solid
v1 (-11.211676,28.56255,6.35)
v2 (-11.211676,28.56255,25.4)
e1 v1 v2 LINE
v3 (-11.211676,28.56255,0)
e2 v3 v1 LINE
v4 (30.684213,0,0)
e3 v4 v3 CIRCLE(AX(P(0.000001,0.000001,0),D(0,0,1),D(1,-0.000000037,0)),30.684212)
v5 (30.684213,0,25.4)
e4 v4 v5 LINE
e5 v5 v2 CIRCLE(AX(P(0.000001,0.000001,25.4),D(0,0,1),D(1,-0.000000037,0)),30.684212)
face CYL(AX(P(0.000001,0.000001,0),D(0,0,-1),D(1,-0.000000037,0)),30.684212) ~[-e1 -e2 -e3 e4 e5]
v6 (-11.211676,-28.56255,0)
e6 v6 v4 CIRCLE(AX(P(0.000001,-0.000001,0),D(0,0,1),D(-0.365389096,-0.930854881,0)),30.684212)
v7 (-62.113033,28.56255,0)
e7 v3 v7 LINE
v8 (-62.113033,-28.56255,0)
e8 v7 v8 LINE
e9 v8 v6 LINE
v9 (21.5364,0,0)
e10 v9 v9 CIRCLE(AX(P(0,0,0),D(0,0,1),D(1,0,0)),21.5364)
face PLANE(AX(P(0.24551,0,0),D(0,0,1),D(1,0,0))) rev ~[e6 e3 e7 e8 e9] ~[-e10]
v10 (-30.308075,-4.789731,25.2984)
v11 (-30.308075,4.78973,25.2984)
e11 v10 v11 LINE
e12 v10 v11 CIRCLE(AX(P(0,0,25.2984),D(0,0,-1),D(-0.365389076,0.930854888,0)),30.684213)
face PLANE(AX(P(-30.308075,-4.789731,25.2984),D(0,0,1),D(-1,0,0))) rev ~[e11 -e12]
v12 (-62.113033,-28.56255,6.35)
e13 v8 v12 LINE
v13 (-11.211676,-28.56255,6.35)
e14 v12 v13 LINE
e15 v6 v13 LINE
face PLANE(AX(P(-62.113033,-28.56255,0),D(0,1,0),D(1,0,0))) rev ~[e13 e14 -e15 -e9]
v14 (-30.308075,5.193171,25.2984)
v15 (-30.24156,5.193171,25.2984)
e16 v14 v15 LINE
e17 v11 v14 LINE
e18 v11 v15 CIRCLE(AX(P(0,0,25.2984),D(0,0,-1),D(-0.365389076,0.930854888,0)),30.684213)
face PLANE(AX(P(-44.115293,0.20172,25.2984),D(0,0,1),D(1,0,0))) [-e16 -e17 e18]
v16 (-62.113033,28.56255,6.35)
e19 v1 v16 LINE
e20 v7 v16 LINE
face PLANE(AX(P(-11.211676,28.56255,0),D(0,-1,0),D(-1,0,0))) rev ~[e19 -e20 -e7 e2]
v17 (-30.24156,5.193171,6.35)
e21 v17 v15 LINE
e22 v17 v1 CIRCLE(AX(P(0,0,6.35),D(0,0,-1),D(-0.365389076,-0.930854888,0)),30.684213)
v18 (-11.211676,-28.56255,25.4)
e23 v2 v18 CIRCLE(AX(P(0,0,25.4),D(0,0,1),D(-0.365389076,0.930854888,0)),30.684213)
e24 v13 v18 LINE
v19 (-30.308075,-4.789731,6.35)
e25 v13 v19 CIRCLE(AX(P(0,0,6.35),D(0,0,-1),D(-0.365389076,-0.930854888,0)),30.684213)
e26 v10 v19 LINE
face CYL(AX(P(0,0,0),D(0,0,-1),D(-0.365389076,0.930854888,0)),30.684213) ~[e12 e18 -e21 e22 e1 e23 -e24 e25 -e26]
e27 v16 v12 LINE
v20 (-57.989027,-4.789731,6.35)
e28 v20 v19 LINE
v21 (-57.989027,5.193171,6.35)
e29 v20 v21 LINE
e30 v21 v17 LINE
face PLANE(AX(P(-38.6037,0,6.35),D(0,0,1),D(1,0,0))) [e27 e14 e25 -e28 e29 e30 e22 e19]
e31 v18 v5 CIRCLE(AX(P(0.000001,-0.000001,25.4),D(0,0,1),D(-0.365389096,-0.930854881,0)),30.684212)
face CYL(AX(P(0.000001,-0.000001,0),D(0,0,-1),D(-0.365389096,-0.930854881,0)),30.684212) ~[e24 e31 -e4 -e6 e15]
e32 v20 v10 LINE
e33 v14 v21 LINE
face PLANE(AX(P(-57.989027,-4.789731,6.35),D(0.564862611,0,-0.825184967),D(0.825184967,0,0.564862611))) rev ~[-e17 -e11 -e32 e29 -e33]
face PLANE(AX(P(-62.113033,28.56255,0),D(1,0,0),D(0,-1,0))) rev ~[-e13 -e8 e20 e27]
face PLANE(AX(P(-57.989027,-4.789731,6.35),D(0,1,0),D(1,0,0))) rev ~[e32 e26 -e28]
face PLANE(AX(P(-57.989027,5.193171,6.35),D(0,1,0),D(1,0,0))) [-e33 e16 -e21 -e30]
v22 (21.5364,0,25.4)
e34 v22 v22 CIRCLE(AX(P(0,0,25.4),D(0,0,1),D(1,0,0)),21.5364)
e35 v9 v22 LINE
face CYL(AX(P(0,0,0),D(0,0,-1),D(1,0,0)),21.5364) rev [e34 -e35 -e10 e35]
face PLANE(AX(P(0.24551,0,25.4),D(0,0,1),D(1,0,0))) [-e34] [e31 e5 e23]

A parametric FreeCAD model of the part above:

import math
import FreeCAD as App
import Part
import Sketcher
Q = App.Units.Quantity

doc = App.newDocument("Part")
params = doc.addObject("Spreadsheet::Sheet", "Params")
for row, (alias, value) in enumerate([
    ("pad1_length", "0.25 in"),
    ("pad2_length", "1 in"),
    ("pad3_length", "0.746 in"),
    ("sketch4_height", "0.746 in"),
    ("pocket1_length", "1 in"),
], start=1):
    params.set(f"A{row}", alias)
    params.set(f"B{row}", "=" + value)
    params.setAlias(f"B{row}", alias)

body = doc.addObject("PartDesign::Body", "Body")

# Sketch on XY plane
sketch1 = doc.addObject("Sketcher::SketchObject", "Sketch")
body.addObject(sketch1)
sketch1.AttachmentSupport = (doc.XY_Plane, [""])
sketch1.MapMode = "FlatFace"
sketch1.addGeometry([
    Part.ArcOfCircle(Part.Circle(App.Vector(0, 0, 0), App.Vector(0, 0, 1), 31), math.radians(111), math.radians(249)),
    Part.LineSegment(App.Vector(-11, 29, 0), App.Vector(-62, 29, 0)),
    Part.LineSegment(App.Vector(-62, 29, 0), App.Vector(-62, -29, 0)),
    Part.LineSegment(App.Vector(-62, -29, 0), App.Vector(-11, -29, 0)),
], False)
sketch1.addConstraint([
    Sketcher.Constraint("Coincident", 0, 1, 1, 1),
    Sketcher.Constraint("Coincident", 1, 2, 2, 1),
    Sketcher.Constraint("Coincident", 2, 2, 3, 1),
    Sketcher.Constraint("Coincident", 3, 2, 0, 2),
    Sketcher.Constraint("Horizontal", 1),
    Sketcher.Constraint("Vertical", 2),
    Sketcher.Constraint("Horizontal", 3),
    Sketcher.Constraint("Coincident", 0, 3, -1, 1),
    Sketcher.Constraint("Vertical", 0, 1, 3, 2),
    Sketcher.Constraint("DistanceY", 2, 2, 2, 1, Q("57.1251 mm")),
    Sketcher.Constraint("Radius", 0, Q("30.684213 mm")),
    Sketcher.Constraint("DistanceX", 1, 2, 1, 1, Q("50.901357 mm")),
])
pad1 = doc.addObject("PartDesign::Pad", "Pad")
body.addObject(pad1)
pad1.Profile = sketch1
pad1.setExpression("Length", "Params.pad1_length")

# Sketch on XY plane
sketch2 = doc.addObject("Sketcher::SketchObject", "Sketch001")
body.addObject(sketch2)
sketch2.AttachmentSupport = (doc.XY_Plane, [""])
sketch2.MapMode = "FlatFace"
sketch2.addGeometry([
    Part.ArcOfCircle(Part.Circle(App.Vector(0, 0, 0), App.Vector(0, 0, 1), 31), math.radians(-111), math.radians(0)),
    Part.ArcOfCircle(Part.Circle(App.Vector(0, 0, 0), App.Vector(0, 0, 1), 31), math.radians(0), math.radians(111)),
    Part.ArcOfCircle(Part.Circle(App.Vector(0, 0, 0), App.Vector(0, 0, 1), 31), math.radians(111), math.radians(249)),
    Part.Circle(App.Vector(0, 0, 0), App.Vector(0, 0, 1), 22),
], False)
sketch2.addConstraint([
    Sketcher.Constraint("Tangent", 0, 2, 1, 1),
    Sketcher.Constraint("Tangent", 1, 2, 2, 1),
    Sketcher.Constraint("Tangent", 2, 2, 0, 1),
    Sketcher.Constraint("Coincident", 0, 3, -1, 1),
    Sketcher.Constraint("Coincident", 3, 3, -1, 1),
    Sketcher.Constraint("PointOnObject", 0, 2, -1),
    Sketcher.Constraint("Vertical", 1, 2, 2, 2),
    Sketcher.Constraint("Diameter", 3, Q("43.0728 mm")),
    Sketcher.Constraint("Radius", 0, Q("30.684212 mm")),
    Sketcher.Constraint("DistanceY", -1, 1, 1, 2, Q("28.56255 mm")),
])
pad2 = doc.addObject("PartDesign::Pad", "Pad001")
body.addObject(pad2)
pad2.Profile = sketch2
pad2.setExpression("Length", "Params.pad2_length")

# Sketch on XY plane
sketch3 = doc.addObject("Sketcher::SketchObject", "Sketch002")
body.addObject(sketch3)
sketch3.AttachmentSupport = (doc.XY_Plane, [""])
sketch3.MapMode = "FlatFace"
sketch3.AttachmentOffset = App.Placement(App.Vector(0, 0, 0.25 * 25.4), App.Rotation())
sketch3.addGeometry([
    Part.LineSegment(App.Vector(-58, 5, 0), App.Vector(-58, -5, 0)),
    Part.LineSegment(App.Vector(-58, -5, 0), App.Vector(-30, -5, 0)),
    Part.LineSegment(App.Vector(-30, -5, 0), App.Vector(-30, 5, 0)),
    Part.LineSegment(App.Vector(-30, 5, 0), App.Vector(-58, 5, 0)),
], False)
sketch3.addConstraint([
    Sketcher.Constraint("Coincident", 0, 2, 1, 1),
    Sketcher.Constraint("Coincident", 1, 2, 2, 1),
    Sketcher.Constraint("Coincident", 2, 2, 3, 1),
    Sketcher.Constraint("Coincident", 3, 2, 0, 1),
    Sketcher.Constraint("Vertical", 0),
    Sketcher.Constraint("Horizontal", 1),
    Sketcher.Constraint("Vertical", 2),
    Sketcher.Constraint("Horizontal", 3),
    Sketcher.Constraint("DistanceY", 0, 2, 0, 1, Q("9.982902 mm")),
    Sketcher.Constraint("DistanceX", 1, 1, 1, 2, Q("27.747467 mm")),
    Sketcher.Constraint("DistanceY", 0, 2, -1, 1, Q("4.789731 mm")),
    Sketcher.Constraint("DistanceX", 1, 2, -1, 1, Q("30.24156 mm")),
])
pad3 = doc.addObject("PartDesign::Pad", "Pad002")
body.addObject(pad3)
pad3.Profile = sketch3
pad3.setExpression("Length", "Params.pad3_length")

# Sketch on XZ plane
sketch4 = doc.addObject("Sketcher::SketchObject", "Sketch003")
body.addObject(sketch4)
sketch4.AttachmentSupport = (doc.XZ_Plane, [""])
sketch4.MapMode = "FlatFace"
sketch4.AttachmentOffset = App.Placement(App.Vector(0, 0, 4.789731), App.Rotation())
sketch4.addGeometry([
    Part.LineSegment(App.Vector(-58, 6, 0), App.Vector(-30, 25, 0)),
    Part.LineSegment(App.Vector(-30, 25, 0), App.Vector(-58, 25, 0)),
    Part.LineSegment(App.Vector(-58, 25, 0), App.Vector(-58, 6, 0)),
], False)
sketch4.addConstraint([
    Sketcher.Constraint("Coincident", 0, 2, 1, 1),
    Sketcher.Constraint("Coincident", 1, 2, 2, 1),
    Sketcher.Constraint("Coincident", 2, 2, 0, 1),
    Sketcher.Constraint("Horizontal", 1),
    Sketcher.Constraint("Vertical", 2),
    Sketcher.Constraint("DistanceY", 2, 2, 2, 1, Q("0.746 in")),
    Sketcher.Constraint("DistanceY", -1, 1, 2, 2, Q("0.25 in")),
    Sketcher.Constraint("Distance", 0, Q("33.545148 mm")),
    Sketcher.Constraint("DistanceX", 0, 2, -1, 1, Q("30.308075 mm")),
])
sketch4.setExpression("Constraints[5]", "Params.sketch4_height")
pocket1 = doc.addObject("PartDesign::Pocket", "Pocket")
body.addObject(pocket1)
pocket1.Profile = sketch4
pocket1.setExpression("Length", "Params.pocket1_length")

doc.recompute()
